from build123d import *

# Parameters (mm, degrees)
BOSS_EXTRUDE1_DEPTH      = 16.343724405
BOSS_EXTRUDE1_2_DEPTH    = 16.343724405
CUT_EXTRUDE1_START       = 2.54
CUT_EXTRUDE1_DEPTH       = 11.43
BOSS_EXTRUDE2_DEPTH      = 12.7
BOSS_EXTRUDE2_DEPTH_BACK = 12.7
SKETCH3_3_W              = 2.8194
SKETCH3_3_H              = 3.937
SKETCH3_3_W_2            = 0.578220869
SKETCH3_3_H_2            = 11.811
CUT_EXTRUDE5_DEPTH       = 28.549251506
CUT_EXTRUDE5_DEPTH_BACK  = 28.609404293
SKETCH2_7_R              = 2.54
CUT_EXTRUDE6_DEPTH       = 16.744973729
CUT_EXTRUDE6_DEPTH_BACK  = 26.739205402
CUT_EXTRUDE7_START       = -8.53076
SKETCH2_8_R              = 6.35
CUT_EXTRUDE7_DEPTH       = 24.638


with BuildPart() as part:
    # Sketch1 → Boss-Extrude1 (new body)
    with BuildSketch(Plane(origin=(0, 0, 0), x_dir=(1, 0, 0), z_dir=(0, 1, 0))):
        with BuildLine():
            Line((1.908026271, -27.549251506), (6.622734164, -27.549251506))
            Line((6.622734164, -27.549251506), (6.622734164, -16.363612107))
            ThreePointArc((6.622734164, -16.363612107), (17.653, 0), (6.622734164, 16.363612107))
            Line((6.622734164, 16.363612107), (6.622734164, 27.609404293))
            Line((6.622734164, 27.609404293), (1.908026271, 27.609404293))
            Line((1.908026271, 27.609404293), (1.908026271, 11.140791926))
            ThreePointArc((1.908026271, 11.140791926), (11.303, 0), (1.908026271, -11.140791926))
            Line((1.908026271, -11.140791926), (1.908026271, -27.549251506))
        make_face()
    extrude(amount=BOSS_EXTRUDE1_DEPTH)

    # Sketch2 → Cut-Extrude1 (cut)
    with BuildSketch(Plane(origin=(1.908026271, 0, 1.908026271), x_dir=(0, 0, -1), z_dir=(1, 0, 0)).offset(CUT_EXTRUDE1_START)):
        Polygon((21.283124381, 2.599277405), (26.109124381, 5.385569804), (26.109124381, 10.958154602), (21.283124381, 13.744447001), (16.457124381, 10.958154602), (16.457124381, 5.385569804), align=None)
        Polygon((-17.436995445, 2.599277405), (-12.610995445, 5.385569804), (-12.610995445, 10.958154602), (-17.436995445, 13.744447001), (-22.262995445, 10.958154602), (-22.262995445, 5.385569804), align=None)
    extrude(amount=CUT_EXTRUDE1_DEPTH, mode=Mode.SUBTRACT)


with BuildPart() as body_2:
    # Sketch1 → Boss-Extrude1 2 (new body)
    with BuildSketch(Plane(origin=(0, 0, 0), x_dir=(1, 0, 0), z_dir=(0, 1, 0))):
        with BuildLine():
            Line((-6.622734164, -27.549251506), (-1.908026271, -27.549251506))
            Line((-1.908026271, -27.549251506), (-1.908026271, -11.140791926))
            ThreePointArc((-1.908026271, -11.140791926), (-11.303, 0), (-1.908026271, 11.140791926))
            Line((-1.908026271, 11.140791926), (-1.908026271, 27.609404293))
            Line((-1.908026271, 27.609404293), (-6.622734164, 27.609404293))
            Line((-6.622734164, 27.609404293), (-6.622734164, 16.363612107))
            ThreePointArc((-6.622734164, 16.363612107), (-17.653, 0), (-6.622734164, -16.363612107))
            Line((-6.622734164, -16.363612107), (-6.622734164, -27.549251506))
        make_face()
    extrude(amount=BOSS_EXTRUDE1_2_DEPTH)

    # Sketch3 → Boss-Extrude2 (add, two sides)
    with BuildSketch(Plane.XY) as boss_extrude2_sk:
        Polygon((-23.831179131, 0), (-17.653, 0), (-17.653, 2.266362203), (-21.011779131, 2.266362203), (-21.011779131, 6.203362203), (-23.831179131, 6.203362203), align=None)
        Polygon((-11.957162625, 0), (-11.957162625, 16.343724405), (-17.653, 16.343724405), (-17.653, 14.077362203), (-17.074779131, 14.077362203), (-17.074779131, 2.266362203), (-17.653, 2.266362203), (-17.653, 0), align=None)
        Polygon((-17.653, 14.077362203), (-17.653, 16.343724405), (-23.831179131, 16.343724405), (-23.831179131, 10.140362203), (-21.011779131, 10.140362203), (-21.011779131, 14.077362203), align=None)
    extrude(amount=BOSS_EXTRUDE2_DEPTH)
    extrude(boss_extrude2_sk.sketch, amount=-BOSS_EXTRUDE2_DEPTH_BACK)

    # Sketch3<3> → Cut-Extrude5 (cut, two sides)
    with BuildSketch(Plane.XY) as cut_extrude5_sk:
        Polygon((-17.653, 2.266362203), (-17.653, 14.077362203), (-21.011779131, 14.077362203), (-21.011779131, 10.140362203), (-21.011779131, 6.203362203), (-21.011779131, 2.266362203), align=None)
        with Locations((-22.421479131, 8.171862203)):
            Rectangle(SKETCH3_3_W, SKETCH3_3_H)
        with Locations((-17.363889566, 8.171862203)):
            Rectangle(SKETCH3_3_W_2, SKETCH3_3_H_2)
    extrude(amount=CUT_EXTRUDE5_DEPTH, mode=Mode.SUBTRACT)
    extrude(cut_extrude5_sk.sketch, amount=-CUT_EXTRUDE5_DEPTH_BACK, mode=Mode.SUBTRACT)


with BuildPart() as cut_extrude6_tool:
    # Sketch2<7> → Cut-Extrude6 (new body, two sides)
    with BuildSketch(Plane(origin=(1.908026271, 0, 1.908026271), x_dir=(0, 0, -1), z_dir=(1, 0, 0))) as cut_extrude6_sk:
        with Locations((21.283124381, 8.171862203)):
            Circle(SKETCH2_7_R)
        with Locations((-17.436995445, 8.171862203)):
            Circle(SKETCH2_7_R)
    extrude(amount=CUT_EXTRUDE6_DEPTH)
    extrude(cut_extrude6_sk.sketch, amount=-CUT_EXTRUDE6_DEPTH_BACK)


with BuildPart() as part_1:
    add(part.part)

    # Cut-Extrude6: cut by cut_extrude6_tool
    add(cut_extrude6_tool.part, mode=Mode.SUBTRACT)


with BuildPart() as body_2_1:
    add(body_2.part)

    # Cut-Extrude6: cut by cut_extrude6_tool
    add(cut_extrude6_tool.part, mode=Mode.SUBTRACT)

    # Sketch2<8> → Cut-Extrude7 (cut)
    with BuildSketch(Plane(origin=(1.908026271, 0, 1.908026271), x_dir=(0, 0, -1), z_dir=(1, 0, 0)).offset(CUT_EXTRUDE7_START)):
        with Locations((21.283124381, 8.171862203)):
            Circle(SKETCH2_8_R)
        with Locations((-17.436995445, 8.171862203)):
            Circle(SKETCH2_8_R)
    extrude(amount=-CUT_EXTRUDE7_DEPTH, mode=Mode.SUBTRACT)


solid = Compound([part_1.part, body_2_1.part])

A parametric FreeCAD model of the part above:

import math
import FreeCAD as App
import Part
import Sketcher

V = App.Vector
Q = App.Units.Quantity

doc = App.newDocument("Part")
body = doc.addObject("PartDesign::Body", "Body")

# Sketch on XZ plane
sketch1 = body.newObject("Sketcher::SketchObject", "Sketch")
sketch1.AttachmentSupport = (doc.getObject("XZ_Plane"), [""])
sketch1.MapMode = "FlatFace"
sketch1.addGeometry(Part.LineSegment(V(1.9, 27.5, 0), V(6.6, 27.5, 0)), False)
sketch1.addGeometry(Part.LineSegment(V(6.6, 27.5, 0), V(6.6, 16.4, 0)), False)
sketch1.addGeometry(Part.ArcOfCircle(Part.Circle(V(0, 0, 0), V(0, 0, 1), 17.7), math.radians(-68), math.radians(68)), False)
sketch1.addGeometry(Part.LineSegment(V(6.6, -16.4, 0), V(6.6, -27.6, 0)), False)
sketch1.addGeometry(Part.LineSegment(V(6.6, -27.6, 0), V(1.9, -27.6, 0)), False)
sketch1.addGeometry(Part.LineSegment(V(1.9, -27.6, 0), V(1.9, -11.1, 0)), False)
sketch1.addGeometry(Part.ArcOfCircle(Part.Circle(V(0, 0, 0), V(0, 0, 1), 11.3), math.radians(-80), math.radians(80)), False)
sketch1.addGeometry(Part.LineSegment(V(1.9, 11.1, 0), V(1.9, 27.5, 0)), False)
sketch1.addConstraint(Sketcher.Constraint("Coincident", 0, 2, 1, 1))
sketch1.addConstraint(Sketcher.Constraint("Coincident", 1, 2, 2, 2))
sketch1.addConstraint(Sketcher.Constraint("Coincident", 2, 1, 3, 1))
sketch1.addConstraint(Sketcher.Constraint("Coincident", 3, 2, 4, 1))
sketch1.addConstraint(Sketcher.Constraint("Coincident", 4, 2, 5, 1))
sketch1.addConstraint(Sketcher.Constraint("Coincident", 5, 2, 6, 1))
sketch1.addConstraint(Sketcher.Constraint("Coincident", 6, 2, 7, 1))
sketch1.addConstraint(Sketcher.Constraint("Coincident", 7, 2, 0, 1))
sketch1.addConstraint(Sketcher.Constraint("Horizontal", 0))
sketch1.addConstraint(Sketcher.Constraint("Vertical", 1))
sketch1.addConstraint(Sketcher.Constraint("Vertical", 3))
sketch1.addConstraint(Sketcher.Constraint("Horizontal", 4))
sketch1.addConstraint(Sketcher.Constraint("Vertical", 5))
sketch1.addConstraint(Sketcher.Constraint("Vertical", 7))
sketch1.addConstraint(Sketcher.Constraint("Coincident", 2, 3, -1, 1))
sketch1.addConstraint(Sketcher.Constraint("Coincident", 6, 3, -1, 1))
sketch1.addConstraint(Sketcher.Constraint("Vertical", 1, 2, 2, 1))
sketch1.addConstraint(Sketcher.Constraint("Vertical", 5, 2, 6, 2))
sketch1.addConstraint(Sketcher.Constraint("Radius", 2, Q("0.695 in")))
sketch1.addConstraint(Sketcher.Constraint("Radius", 6, Q("0.445 in")))
sketch1.addConstraint(Sketcher.Constraint("DistanceY", 1, 2, 1, 1, 11.185639))
sketch1.addConstraint(Sketcher.Constraint("DistanceY", 7, 1, 7, 2, 16.40846))
sketch1.addConstraint(Sketcher.Constraint("DistanceX", 0, 1, 0, 2, 4.714708))
sketch1.addConstraint(Sketcher.Constraint("DistanceY", 3, 2, 3, 1, 11.245792))
pad1 = body.newObject("PartDesign::Pad", "Pad")
pad1.Profile = sketch1
pad1.Length = 16.343724
pad1.Reversed = True

# Sketch on YZ plane
sketch2 = body.newObject("Sketcher::SketchObject", "Sketch001")
sketch2.AttachmentSupport = (doc.getObject("YZ_Plane"), [""])
sketch2.MapMode = "FlatFace"
sketch2.AttachmentOffset = App.Placement(V(0, 0, 4.448026), App.Rotation())
sketch2.addGeometry(Part.LineSegment(V(3, -19, 0), V(5, -24, 0)), False)
sketch2.addGeometry(Part.LineSegment(V(5, -24, 0), V(11, -24, 0)), False)
sketch2.addGeometry(Part.LineSegment(V(11, -24, 0), V(14, -19, 0)), False)
sketch2.addGeometry(Part.LineSegment(V(14, -19, 0), V(11, -15, 0)), False)
sketch2.addGeometry(Part.LineSegment(V(11, -15, 0), V(5, -15, 0)), False)
sketch2.addGeometry(Part.LineSegment(V(5, -15, 0), V(3, -19, 0)), False)
sketch2.addGeometry(Part.LineSegment(V(3, 19, 0), V(5, 15, 0)), False)
sketch2.addGeometry(Part.LineSegment(V(5, 15, 0), V(11, 15, 0)), False)
sketch2.addGeometry(Part.LineSegment(V(11, 15, 0), V(14, 19, 0)), False)
sketch2.addGeometry(Part.LineSegment(V(14, 19, 0), V(11, 24, 0)), False)
sketch2.addGeometry(Part.LineSegment(V(11, 24, 0), V(5, 24, 0)), False)
sketch2.addGeometry(Part.LineSegment(V(5, 24, 0), V(3, 19, 0)), False)
sketch2.addConstraint(Sketcher.Constraint("Coincident", 0, 2, 1, 1))
sketch2.addConstraint(Sketcher.Constraint("Coincident", 1, 2, 2, 1))
sketch2.addConstraint(Sketcher.Constraint("Coincident", 2, 2, 3, 1))
sketch2.addConstraint(Sketcher.Constraint("Coincident", 3, 2, 4, 1))
sketch2.addConstraint(Sketcher.Constraint("Coincident", 4, 2, 5, 1))
sketch2.addConstraint(Sketcher.Constraint("Coincident", 5, 2, 0, 1))
sketch2.addConstraint(Sketcher.Constraint("Coincident", 6, 2, 7, 1))
sketch2.addConstraint(Sketcher.Constraint("Coincident", 7, 2, 8, 1))
sketch2.addConstraint(Sketcher.Constraint("Coincident", 8, 2, 9, 1))
sketch2.addConstraint(Sketcher.Constraint("Coincident", 9, 2, 10, 1))
sketch2.addConstraint(Sketcher.Constraint("Coincident", 10, 2, 11, 1))
sketch2.addConstraint(Sketcher.Constraint("Coincident", 11, 2, 6, 1))
sketch2.addConstraint(Sketcher.Constraint("Horizontal", 1))
sketch2.addConstraint(Sketcher.Constraint("Horizontal", 4))
sketch2.addConstraint(Sketcher.Constraint("Horizontal", 7))
sketch2.addConstraint(Sketcher.Constraint("Horizontal", 10))
sketch2.addConstraint(Sketcher.Constraint("Parallel", 0, 3))
sketch2.addConstraint(Sketcher.Constraint("Parallel", 2, 5))
sketch2.addConstraint(Sketcher.Constraint("Parallel", 3, 6))
sketch2.addConstraint(Sketcher.Constraint("Parallel", 5, 8))
sketch2.addConstraint(Sketcher.Constraint("Parallel", 6, 9))
sketch2.addConstraint(Sketcher.Constraint("Parallel", 8, 11))
sketch2.addConstraint(Sketcher.Constraint("Horizontal", 2, 2, 5, 2))
sketch2.addConstraint(Sketcher.Constraint("Horizontal", 8, 2, 11, 2))
sketch2.addConstraint(Sketcher.Constraint("Vertical", 1, 2, 3, 2))
sketch2.addConstraint(Sketcher.Constraint("Vertical", 0, 2, 4, 2))
sketch2.addConstraint(Sketcher.Constraint("Vertical", 4, 2, 6, 2))
sketch2.addConstraint(Sketcher.Constraint("Vertical", 3, 2, 7, 2))
sketch2.addConstraint(Sketcher.Constraint("Vertical", 2, 2, 8, 2))
sketch2.addConstraint(Sketcher.Constraint("Vertical", 7, 2, 9, 2))
sketch2.addConstraint(Sketcher.Constraint("Angle", 0, Q("-60 deg")))
sketch2.addConstraint(Sketcher.Constraint("DistanceY", 1, 2, 2, 2, Q("0.19 in")))
sketch2.addConstraint(Sketcher.Constraint("DistanceY", 0, 2, -1, 1, 24.201098))
sketch2.addConstraint(Sketcher.Constraint("DistanceX", 1, 1, 1, 2, 5.572585))
sketch2.addConstraint(Sketcher.Constraint("DistanceX", -1, 1, 0, 2, 5.38557))
sketch2.addConstraint(Sketcher.Constraint("DistanceY", -1, 1, 6, 2, 14.519022))
pocket1 = body.newObject("PartDesign::Pocket", "Pocket")
pocket1.Profile = sketch2
pocket1.Length = Q("0.45 in")
pocket1.Reversed = True
body2 = doc.addObject("PartDesign::Body", "Body001")

# Sketch on XZ plane
sketch3 = body2.newObject("Sketcher::SketchObject", "Sketch002")
sketch3.AttachmentSupport = (doc.getObject("XZ_Plane001"), [""])
sketch3.MapMode = "FlatFace"
sketch3.addGeometry(Part.LineSegment(V(-6.6, 27.5, 0), V(-1.9, 27.5, 0)), False)
sketch3.addGeometry(Part.LineSegment(V(-1.9, 27.5, 0), V(-1.9, 11.1, 0)), False)
sketch3.addGeometry(Part.ArcOfCircle(Part.Circle(V(0, 0, 0), V(0, 0, 1), 11.3), math.radians(100), math.radians(260)), False)
sketch3.addGeometry(Part.LineSegment(V(-1.9, -11.1, 0), V(-1.9, -27.6, 0)), False)
sketch3.addGeometry(Part.LineSegment(V(-1.9, -27.6, 0), V(-6.6, -27.6, 0)), False)
sketch3.addGeometry(Part.LineSegment(V(-6.6, -27.6, 0), V(-6.6, -16.4, 0)), False)
sketch3.addGeometry(Part.ArcOfCircle(Part.Circle(V(0, 0, 0), V(0, 0, 1), 17.7), math.radians(112), math.radians(248)), False)
sketch3.addGeometry(Part.LineSegment(V(-6.6, 16.4, 0), V(-6.6, 27.5, 0)), False)
sketch3.addConstraint(Sketcher.Constraint("Coincident", 0, 2, 1, 1))
sketch3.addConstraint(Sketcher.Constraint("Coincident", 1, 2, 2, 1))
sketch3.addConstraint(Sketcher.Constraint("Coincident", 2, 2, 3, 1))
sketch3.addConstraint(Sketcher.Constraint("Coincident", 3, 2, 4, 1))
sketch3.addConstraint(Sketcher.Constraint("Coincident", 4, 2, 5, 1))
sketch3.addConstraint(Sketcher.Constraint("Coincident", 5, 2, 6, 2))
sketch3.addConstraint(Sketcher.Constraint("Coincident", 6, 1, 7, 1))
sketch3.addConstraint(Sketcher.Constraint("Coincident", 7, 2, 0, 1))
sketch3.addConstraint(Sketcher.Constraint("Horizontal", 0))
sketch3.addConstraint(Sketcher.Constraint("Vertical", 1))
sketch3.addConstraint(Sketcher.Constraint("Vertical", 3))
sketch3.addConstraint(Sketcher.Constraint("Horizontal", 4))
sketch3.addConstraint(Sketcher.Constraint("Vertical", 5))
sketch3.addConstraint(Sketcher.Constraint("Vertical", 7))
sketch3.addConstraint(Sketcher.Constraint("Coincident", 2, 3, -1, 1))
sketch3.addConstraint(Sketcher.Constraint("Coincident", 6, 3, -1, 1))
sketch3.addConstraint(Sketcher.Constraint("Vertical", 1, 2, 2, 2))
sketch3.addConstraint(Sketcher.Constraint("Vertical", 5, 2, 6, 1))
sketch3.addConstraint(Sketcher.Constraint("Radius", 2, Q("0.445 in")))
sketch3.addConstraint(Sketcher.Constraint("Radius", 6, Q("0.695 in")))
sketch3.addConstraint(Sketcher.Constraint("DistanceY", 1, 2, 1, 1, 16.40846))
sketch3.addConstraint(Sketcher.Constraint("DistanceY", 7, 1, 7, 2, 11.185639))
sketch3.addConstraint(Sketcher.Constraint("DistanceX", 0, 1, 0, 2, 4.714708))
sketch3.addConstraint(Sketcher.Constraint("DistanceY", 3, 2, 3, 1, 16.468612))
pad2 = body2.newObject("PartDesign::Pad", "Pad001")
pad2.Profile = sketch3
pad2.Length = 16.343724
pad2.Reversed = True

# Sketch on XY plane
sketch4 = body2.newObject("Sketcher::SketchObject", "Sketch003")
sketch4.AttachmentSupport = (doc.getObject("XY_Plane001"), [""])
sketch4.MapMode = "FlatFace"
sketch4.addGeometry(Part.LineSegment(V(-23.8, 0, 0), V(-12, 0, 0)), False)
sketch4.addGeometry(Part.LineSegment(V(-12, 0, 0), V(-12, 16.3, 0)), False)
sketch4.addGeometry(Part.LineSegment(V(-12, 16.3, 0), V(-23.8, 16.3, 0)), False)
sketch4.addGeometry(Part.LineSegment(V(-23.8, 16.3, 0), V(-23.8, 10.1, 0)), False)
sketch4.addGeometry(Part.LineSegment(V(-23.8, 10.1, 0), V(-21, 10.1, 0)), False)
sketch4.addGeometry(Part.LineSegment(V(-21, 10.1, 0), V(-21, 14.1, 0)), False)
sketch4.addGeometry(Part.LineSegment(V(-21, 14.1, 0), V(-17.1, 14.1, 0)), False)
sketch4.addGeometry(Part.LineSegment(V(-17.1, 14.1, 0), V(-17.1, 2.3, 0)), False)
sketch4.addGeometry(Part.LineSegment(V(-17.1, 2.3, 0), V(-21, 2.3, 0)), False)
sketch4.addGeometry(Part.LineSegment(V(-21, 2.3, 0), V(-21, 6.2, 0)), False)
sketch4.addGeometry(Part.LineSegment(V(-21, 6.2, 0), V(-23.8, 6.2, 0)), False)
sketch4.addGeometry(Part.LineSegment(V(-23.8, 6.2, 0), V(-23.8, 0, 0)), False)
sketch4.addConstraint(Sketcher.Constraint("Coincident", 0, 2, 1, 1))
sketch4.addConstraint(Sketcher.Constraint("Coincident", 1, 2, 2, 1))
sketch4.addConstraint(Sketcher.Constraint("Coincident", 2, 2, 3, 1))
sketch4.addConstraint(Sketcher.Constraint("Coincident", 3, 2, 4, 1))
sketch4.addConstraint(Sketcher.Constraint("Coincident", 4, 2, 5, 1))
sketch4.addConstraint(Sketcher.Constraint("Coincident", 5, 2, 6, 1))
sketch4.addConstraint(Sketcher.Constraint("Coincident", 6, 2, 7, 1))
sketch4.addConstraint(Sketcher.Constraint("Coincident", 7, 2, 8, 1))
sketch4.addConstraint(Sketcher.Constraint("Coincident", 8, 2, 9, 1))
sketch4.addConstraint(Sketcher.Constraint("Coincident", 9, 2, 10, 1))
sketch4.addConstraint(Sketcher.Constraint("Coincident", 10, 2, 11, 1))
sketch4.addConstraint(Sketcher.Constraint("Coincident", 11, 2, 0, 1))
sketch4.addConstraint(Sketcher.Constraint("Horizontal", 0))
sketch4.addConstraint(Sketcher.Constraint("Vertical", 1))
sketch4.addConstraint(Sketcher.Constraint("Horizontal", 2))
sketch4.addConstraint(Sketcher.Constraint("Vertical", 3))
sketch4.addConstraint(Sketcher.Constraint("Horizontal", 4))
sketch4.addConstraint(Sketcher.Constraint("Vertical", 5))
sketch4.addConstraint(Sketcher.Constraint("Horizontal", 6))
sketch4.addConstraint(Sketcher.Constraint("Vertical", 7))
sketch4.addConstraint(Sketcher.Constraint("Horizontal", 8))
sketch4.addConstraint(Sketcher.Constraint("Vertical", 9))
sketch4.addConstraint(Sketcher.Constraint("Horizontal", 10))
sketch4.addConstraint(Sketcher.Constraint("Vertical", 11))
sketch4.addConstraint(Sketcher.Constraint("PointOnObject", 0, 2, -1))
sketch4.addConstraint(Sketcher.Constraint("Vertical", 5, 2, 8, 2))
sketch4.addConstraint(Sketcher.Constraint("Vertical", 3, 2, 10, 2))
sketch4.addConstraint(Sketcher.Constraint("Equal", 8, 5))
sketch4.addConstraint(Sketcher.Constraint("Equal", 5, 9))
sketch4.addConstraint(Sketcher.Constraint("Equal", 3, 11))
sketch4.addConstraint(Sketcher.Constraint("DistanceX", 4, 1, 4, 2, Q("0.111 in")))
sketch4.addConstraint(Sketcher.Constraint("DistanceX", 6, 1, 6, 2, Q("0.155 in")))
sketch4.addConstraint(Sketcher.Constraint("DistanceY", 7, 2, 7, 1, Q("0.465 in")))
sketch4.addConstraint(Sketcher.Constraint("DistanceX", 0, 1, 0, 2, 11.874017))
sketch4.addConstraint(Sketcher.Constraint("DistanceY", 1, 1, 1, 2, 16.343724))
sketch4.addConstraint(Sketcher.Constraint("DistanceX", 2, 2, -1, 1, 23.831179))
pad3 = body2.newObject("PartDesign::Pad", "Pad002")
pad3.Profile = sketch4
pad3.Type = "TwoLengths"
pad3.Length = Q("0.5 in")
pad3.Length2 = Q("0.5 in")

# Sketch on XY plane
sketch5 = body2.newObject("Sketcher::SketchObject", "Sketch004")
sketch5.AttachmentSupport = (doc.getObject("XY_Plane001"), [""])
sketch5.MapMode = "FlatFace"
sketch5.addGeometry(Part.LineSegment(V(-21, 14.1, 0), V(-21, 10.1, 0)), False)
sketch5.addGeometry(Part.LineSegment(V(-21, 10.1, 0), V(-23.8, 10.1, 0)), False)
sketch5.addGeometry(Part.LineSegment(V(-23.8, 10.1, 0), V(-23.8, 6.2, 0)), False)
sketch5.addGeometry(Part.LineSegment(V(-23.8, 6.2, 0), V(-21, 6.2, 0)), False)
sketch5.addGeometry(Part.LineSegment(V(-21, 6.2, 0), V(-21, 2.3, 0)), False)
sketch5.addGeometry(Part.LineSegment(V(-21, 2.3, 0), V(-17.1, 2.3, 0)), False)
sketch5.addGeometry(Part.LineSegment(V(-17.1, 2.3, 0), V(-17.1, 14.1, 0)), False)
sketch5.addGeometry(Part.LineSegment(V(-17.1, 14.1, 0), V(-21, 14.1, 0)), False)
sketch5.addConstraint(Sketcher.Constraint("Coincident", 0, 2, 1, 1))
sketch5.addConstraint(Sketcher.Constraint("Coincident", 1, 2, 2, 1))
sketch5.addConstraint(Sketcher.Constraint("Coincident", 2, 2, 3, 1))
sketch5.addConstraint(Sketcher.Constraint("Coincident", 3, 2, 4, 1))
sketch5.addConstraint(Sketcher.Constraint("Coincident", 4, 2, 5, 1))
sketch5.addConstraint(Sketcher.Constraint("Coincident", 5, 2, 6, 1))
sketch5.addConstraint(Sketcher.Constraint("Coincident", 6, 2, 7, 1))
sketch5.addConstraint(Sketcher.Constraint("Coincident", 7, 2, 0, 1))
sketch5.addConstraint(Sketcher.Constraint("Vertical", 0))
sketch5.addConstraint(Sketcher.Constraint("Horizontal", 1))
sketch5.addConstraint(Sketcher.Constraint("Vertical", 2))
sketch5.addConstraint(Sketcher.Constraint("Horizontal", 3))
sketch5.addConstraint(Sketcher.Constraint("Vertical", 4))
sketch5.addConstraint(Sketcher.Constraint("Horizontal", 5))
sketch5.addConstraint(Sketcher.Constraint("Vertical", 6))
sketch5.addConstraint(Sketcher.Constraint("Horizontal", 7))
sketch5.addConstraint(Sketcher.Constraint("Vertical", 0, 2, 3, 2))
sketch5.addConstraint(Sketcher.Constraint("Equal", 7, 0))
sketch5.addConstraint(Sketcher.Constraint("Equal", 0, 2))
sketch5.addConstraint(Sketcher.Constraint("Equal", 2, 4))
sketch5.addConstraint(Sketcher.Constraint("DistanceX", 1, 2, 1, 1, Q("0.111 in")))
sketch5.addConstraint(Sketcher.Constraint("DistanceX", 5, 1, 5, 2, Q("0.155 in")))
sketch5.addConstraint(Sketcher.Constraint("DistanceX", 0, 2, -1, 1, 21.011779))
sketch5.addConstraint(Sketcher.Constraint("DistanceY", -1, 1, 0, 2, 10.140362))
pocket2 = body2.newObject("PartDesign::Pocket", "Pocket001")
pocket2.Profile = sketch5
pocket2.Type = "ThroughAll"
pocket2.Midplane = True
body3 = doc.addObject("PartDesign::Body", "Body002")
body3.AllowCompound = True

# Sketch on YZ plane
sketch6 = body3.newObject("Sketcher::SketchObject", "Sketch005")
sketch6.AttachmentSupport = (doc.getObject("YZ_Plane002"), [""])
sketch6.MapMode = "FlatFace"
sketch6.AttachmentOffset = App.Placement(V(0, 0, 1.908026), App.Rotation())
sketch6.addGeometry(Part.Circle(V(8.2, -19.4, 0), V(0, 0, 1), 2.5), False)
sketch6.addGeometry(Part.Circle(V(8.2, 19.3, 0), V(0, 0, 1), 2.5), False)
sketch6.addConstraint(Sketcher.Constraint("Equal", 0, 1))
sketch6.addConstraint(Sketcher.Constraint("Vertical", 0, 3, 1, 3))
sketch6.addConstraint(Sketcher.Constraint("Diameter", 0, Q("0.2 in")))
sketch6.addConstraint(Sketcher.Constraint("DistanceY", 0, 3, -1, 1, 19.375098))
sketch6.addConstraint(Sketcher.Constraint("DistanceY", -1, 1, 1, 3, 19.345022))
sketch6.addConstraint(Sketcher.Constraint("DistanceX", -1, 1, 0, 3, 8.171862))
pad4 = body3.newObject("PartDesign::Pad", "Pad003")
pad4.Profile = sketch6
pad4.Type = "TwoLengths"
pad4.Length = 16.744974
pad4.Length2 = 26.739205
doc.recompute()

body4 = doc.addObject("PartDesign::Body", "Body003")
body4.BaseFeature = body3
boolean = body.newObject("PartDesign::Boolean", "Boolean")
boolean.Type = "Cut"
boolean.addObjects([body4])
doc.recompute()

boolean2 = body2.newObject("PartDesign::Boolean", "Boolean001")
boolean2.Type = "Cut"
boolean2.addObjects([body3])

# Sketch on YZ plane
sketch7 = body2.newObject("Sketcher::SketchObject", "Sketch006")
sketch7.AttachmentSupport = (doc.getObject("YZ_Plane001"), [""])
sketch7.MapMode = "FlatFace"
sketch7.AttachmentOffset = App.Placement(V(0, 0, -6.622734), App.Rotation())
sketch7.addGeometry(Part.Circle(V(8, -19, 0), V(0, 0, 1), 6), False)
sketch7.addGeometry(Part.Circle(V(8, 19, 0), V(0, 0, 1), 6), False)
sketch7.addConstraint(Sketcher.Constraint("Equal", 0, 1))
sketch7.addConstraint(Sketcher.Constraint("Vertical", 0, 3, 1, 3))
sketch7.addConstraint(Sketcher.Constraint("Diameter", 0, Q("0.5 in")))
sketch7.addConstraint(Sketcher.Constraint("DistanceY", 0, 3, -1, 1, 19.375098))
sketch7.addConstraint(Sketcher.Constraint("DistanceY", -1, 1, 1, 3, 19.345022))
sketch7.addConstraint(Sketcher.Constraint("DistanceX", -1, 1, 0, 3, 8.171862))
pocket3 = body2.newObject("PartDesign::Pocket", "Pocket002")
pocket3.Profile = sketch7
pocket3.Length = Q("0.97 in")

doc.recompute()
